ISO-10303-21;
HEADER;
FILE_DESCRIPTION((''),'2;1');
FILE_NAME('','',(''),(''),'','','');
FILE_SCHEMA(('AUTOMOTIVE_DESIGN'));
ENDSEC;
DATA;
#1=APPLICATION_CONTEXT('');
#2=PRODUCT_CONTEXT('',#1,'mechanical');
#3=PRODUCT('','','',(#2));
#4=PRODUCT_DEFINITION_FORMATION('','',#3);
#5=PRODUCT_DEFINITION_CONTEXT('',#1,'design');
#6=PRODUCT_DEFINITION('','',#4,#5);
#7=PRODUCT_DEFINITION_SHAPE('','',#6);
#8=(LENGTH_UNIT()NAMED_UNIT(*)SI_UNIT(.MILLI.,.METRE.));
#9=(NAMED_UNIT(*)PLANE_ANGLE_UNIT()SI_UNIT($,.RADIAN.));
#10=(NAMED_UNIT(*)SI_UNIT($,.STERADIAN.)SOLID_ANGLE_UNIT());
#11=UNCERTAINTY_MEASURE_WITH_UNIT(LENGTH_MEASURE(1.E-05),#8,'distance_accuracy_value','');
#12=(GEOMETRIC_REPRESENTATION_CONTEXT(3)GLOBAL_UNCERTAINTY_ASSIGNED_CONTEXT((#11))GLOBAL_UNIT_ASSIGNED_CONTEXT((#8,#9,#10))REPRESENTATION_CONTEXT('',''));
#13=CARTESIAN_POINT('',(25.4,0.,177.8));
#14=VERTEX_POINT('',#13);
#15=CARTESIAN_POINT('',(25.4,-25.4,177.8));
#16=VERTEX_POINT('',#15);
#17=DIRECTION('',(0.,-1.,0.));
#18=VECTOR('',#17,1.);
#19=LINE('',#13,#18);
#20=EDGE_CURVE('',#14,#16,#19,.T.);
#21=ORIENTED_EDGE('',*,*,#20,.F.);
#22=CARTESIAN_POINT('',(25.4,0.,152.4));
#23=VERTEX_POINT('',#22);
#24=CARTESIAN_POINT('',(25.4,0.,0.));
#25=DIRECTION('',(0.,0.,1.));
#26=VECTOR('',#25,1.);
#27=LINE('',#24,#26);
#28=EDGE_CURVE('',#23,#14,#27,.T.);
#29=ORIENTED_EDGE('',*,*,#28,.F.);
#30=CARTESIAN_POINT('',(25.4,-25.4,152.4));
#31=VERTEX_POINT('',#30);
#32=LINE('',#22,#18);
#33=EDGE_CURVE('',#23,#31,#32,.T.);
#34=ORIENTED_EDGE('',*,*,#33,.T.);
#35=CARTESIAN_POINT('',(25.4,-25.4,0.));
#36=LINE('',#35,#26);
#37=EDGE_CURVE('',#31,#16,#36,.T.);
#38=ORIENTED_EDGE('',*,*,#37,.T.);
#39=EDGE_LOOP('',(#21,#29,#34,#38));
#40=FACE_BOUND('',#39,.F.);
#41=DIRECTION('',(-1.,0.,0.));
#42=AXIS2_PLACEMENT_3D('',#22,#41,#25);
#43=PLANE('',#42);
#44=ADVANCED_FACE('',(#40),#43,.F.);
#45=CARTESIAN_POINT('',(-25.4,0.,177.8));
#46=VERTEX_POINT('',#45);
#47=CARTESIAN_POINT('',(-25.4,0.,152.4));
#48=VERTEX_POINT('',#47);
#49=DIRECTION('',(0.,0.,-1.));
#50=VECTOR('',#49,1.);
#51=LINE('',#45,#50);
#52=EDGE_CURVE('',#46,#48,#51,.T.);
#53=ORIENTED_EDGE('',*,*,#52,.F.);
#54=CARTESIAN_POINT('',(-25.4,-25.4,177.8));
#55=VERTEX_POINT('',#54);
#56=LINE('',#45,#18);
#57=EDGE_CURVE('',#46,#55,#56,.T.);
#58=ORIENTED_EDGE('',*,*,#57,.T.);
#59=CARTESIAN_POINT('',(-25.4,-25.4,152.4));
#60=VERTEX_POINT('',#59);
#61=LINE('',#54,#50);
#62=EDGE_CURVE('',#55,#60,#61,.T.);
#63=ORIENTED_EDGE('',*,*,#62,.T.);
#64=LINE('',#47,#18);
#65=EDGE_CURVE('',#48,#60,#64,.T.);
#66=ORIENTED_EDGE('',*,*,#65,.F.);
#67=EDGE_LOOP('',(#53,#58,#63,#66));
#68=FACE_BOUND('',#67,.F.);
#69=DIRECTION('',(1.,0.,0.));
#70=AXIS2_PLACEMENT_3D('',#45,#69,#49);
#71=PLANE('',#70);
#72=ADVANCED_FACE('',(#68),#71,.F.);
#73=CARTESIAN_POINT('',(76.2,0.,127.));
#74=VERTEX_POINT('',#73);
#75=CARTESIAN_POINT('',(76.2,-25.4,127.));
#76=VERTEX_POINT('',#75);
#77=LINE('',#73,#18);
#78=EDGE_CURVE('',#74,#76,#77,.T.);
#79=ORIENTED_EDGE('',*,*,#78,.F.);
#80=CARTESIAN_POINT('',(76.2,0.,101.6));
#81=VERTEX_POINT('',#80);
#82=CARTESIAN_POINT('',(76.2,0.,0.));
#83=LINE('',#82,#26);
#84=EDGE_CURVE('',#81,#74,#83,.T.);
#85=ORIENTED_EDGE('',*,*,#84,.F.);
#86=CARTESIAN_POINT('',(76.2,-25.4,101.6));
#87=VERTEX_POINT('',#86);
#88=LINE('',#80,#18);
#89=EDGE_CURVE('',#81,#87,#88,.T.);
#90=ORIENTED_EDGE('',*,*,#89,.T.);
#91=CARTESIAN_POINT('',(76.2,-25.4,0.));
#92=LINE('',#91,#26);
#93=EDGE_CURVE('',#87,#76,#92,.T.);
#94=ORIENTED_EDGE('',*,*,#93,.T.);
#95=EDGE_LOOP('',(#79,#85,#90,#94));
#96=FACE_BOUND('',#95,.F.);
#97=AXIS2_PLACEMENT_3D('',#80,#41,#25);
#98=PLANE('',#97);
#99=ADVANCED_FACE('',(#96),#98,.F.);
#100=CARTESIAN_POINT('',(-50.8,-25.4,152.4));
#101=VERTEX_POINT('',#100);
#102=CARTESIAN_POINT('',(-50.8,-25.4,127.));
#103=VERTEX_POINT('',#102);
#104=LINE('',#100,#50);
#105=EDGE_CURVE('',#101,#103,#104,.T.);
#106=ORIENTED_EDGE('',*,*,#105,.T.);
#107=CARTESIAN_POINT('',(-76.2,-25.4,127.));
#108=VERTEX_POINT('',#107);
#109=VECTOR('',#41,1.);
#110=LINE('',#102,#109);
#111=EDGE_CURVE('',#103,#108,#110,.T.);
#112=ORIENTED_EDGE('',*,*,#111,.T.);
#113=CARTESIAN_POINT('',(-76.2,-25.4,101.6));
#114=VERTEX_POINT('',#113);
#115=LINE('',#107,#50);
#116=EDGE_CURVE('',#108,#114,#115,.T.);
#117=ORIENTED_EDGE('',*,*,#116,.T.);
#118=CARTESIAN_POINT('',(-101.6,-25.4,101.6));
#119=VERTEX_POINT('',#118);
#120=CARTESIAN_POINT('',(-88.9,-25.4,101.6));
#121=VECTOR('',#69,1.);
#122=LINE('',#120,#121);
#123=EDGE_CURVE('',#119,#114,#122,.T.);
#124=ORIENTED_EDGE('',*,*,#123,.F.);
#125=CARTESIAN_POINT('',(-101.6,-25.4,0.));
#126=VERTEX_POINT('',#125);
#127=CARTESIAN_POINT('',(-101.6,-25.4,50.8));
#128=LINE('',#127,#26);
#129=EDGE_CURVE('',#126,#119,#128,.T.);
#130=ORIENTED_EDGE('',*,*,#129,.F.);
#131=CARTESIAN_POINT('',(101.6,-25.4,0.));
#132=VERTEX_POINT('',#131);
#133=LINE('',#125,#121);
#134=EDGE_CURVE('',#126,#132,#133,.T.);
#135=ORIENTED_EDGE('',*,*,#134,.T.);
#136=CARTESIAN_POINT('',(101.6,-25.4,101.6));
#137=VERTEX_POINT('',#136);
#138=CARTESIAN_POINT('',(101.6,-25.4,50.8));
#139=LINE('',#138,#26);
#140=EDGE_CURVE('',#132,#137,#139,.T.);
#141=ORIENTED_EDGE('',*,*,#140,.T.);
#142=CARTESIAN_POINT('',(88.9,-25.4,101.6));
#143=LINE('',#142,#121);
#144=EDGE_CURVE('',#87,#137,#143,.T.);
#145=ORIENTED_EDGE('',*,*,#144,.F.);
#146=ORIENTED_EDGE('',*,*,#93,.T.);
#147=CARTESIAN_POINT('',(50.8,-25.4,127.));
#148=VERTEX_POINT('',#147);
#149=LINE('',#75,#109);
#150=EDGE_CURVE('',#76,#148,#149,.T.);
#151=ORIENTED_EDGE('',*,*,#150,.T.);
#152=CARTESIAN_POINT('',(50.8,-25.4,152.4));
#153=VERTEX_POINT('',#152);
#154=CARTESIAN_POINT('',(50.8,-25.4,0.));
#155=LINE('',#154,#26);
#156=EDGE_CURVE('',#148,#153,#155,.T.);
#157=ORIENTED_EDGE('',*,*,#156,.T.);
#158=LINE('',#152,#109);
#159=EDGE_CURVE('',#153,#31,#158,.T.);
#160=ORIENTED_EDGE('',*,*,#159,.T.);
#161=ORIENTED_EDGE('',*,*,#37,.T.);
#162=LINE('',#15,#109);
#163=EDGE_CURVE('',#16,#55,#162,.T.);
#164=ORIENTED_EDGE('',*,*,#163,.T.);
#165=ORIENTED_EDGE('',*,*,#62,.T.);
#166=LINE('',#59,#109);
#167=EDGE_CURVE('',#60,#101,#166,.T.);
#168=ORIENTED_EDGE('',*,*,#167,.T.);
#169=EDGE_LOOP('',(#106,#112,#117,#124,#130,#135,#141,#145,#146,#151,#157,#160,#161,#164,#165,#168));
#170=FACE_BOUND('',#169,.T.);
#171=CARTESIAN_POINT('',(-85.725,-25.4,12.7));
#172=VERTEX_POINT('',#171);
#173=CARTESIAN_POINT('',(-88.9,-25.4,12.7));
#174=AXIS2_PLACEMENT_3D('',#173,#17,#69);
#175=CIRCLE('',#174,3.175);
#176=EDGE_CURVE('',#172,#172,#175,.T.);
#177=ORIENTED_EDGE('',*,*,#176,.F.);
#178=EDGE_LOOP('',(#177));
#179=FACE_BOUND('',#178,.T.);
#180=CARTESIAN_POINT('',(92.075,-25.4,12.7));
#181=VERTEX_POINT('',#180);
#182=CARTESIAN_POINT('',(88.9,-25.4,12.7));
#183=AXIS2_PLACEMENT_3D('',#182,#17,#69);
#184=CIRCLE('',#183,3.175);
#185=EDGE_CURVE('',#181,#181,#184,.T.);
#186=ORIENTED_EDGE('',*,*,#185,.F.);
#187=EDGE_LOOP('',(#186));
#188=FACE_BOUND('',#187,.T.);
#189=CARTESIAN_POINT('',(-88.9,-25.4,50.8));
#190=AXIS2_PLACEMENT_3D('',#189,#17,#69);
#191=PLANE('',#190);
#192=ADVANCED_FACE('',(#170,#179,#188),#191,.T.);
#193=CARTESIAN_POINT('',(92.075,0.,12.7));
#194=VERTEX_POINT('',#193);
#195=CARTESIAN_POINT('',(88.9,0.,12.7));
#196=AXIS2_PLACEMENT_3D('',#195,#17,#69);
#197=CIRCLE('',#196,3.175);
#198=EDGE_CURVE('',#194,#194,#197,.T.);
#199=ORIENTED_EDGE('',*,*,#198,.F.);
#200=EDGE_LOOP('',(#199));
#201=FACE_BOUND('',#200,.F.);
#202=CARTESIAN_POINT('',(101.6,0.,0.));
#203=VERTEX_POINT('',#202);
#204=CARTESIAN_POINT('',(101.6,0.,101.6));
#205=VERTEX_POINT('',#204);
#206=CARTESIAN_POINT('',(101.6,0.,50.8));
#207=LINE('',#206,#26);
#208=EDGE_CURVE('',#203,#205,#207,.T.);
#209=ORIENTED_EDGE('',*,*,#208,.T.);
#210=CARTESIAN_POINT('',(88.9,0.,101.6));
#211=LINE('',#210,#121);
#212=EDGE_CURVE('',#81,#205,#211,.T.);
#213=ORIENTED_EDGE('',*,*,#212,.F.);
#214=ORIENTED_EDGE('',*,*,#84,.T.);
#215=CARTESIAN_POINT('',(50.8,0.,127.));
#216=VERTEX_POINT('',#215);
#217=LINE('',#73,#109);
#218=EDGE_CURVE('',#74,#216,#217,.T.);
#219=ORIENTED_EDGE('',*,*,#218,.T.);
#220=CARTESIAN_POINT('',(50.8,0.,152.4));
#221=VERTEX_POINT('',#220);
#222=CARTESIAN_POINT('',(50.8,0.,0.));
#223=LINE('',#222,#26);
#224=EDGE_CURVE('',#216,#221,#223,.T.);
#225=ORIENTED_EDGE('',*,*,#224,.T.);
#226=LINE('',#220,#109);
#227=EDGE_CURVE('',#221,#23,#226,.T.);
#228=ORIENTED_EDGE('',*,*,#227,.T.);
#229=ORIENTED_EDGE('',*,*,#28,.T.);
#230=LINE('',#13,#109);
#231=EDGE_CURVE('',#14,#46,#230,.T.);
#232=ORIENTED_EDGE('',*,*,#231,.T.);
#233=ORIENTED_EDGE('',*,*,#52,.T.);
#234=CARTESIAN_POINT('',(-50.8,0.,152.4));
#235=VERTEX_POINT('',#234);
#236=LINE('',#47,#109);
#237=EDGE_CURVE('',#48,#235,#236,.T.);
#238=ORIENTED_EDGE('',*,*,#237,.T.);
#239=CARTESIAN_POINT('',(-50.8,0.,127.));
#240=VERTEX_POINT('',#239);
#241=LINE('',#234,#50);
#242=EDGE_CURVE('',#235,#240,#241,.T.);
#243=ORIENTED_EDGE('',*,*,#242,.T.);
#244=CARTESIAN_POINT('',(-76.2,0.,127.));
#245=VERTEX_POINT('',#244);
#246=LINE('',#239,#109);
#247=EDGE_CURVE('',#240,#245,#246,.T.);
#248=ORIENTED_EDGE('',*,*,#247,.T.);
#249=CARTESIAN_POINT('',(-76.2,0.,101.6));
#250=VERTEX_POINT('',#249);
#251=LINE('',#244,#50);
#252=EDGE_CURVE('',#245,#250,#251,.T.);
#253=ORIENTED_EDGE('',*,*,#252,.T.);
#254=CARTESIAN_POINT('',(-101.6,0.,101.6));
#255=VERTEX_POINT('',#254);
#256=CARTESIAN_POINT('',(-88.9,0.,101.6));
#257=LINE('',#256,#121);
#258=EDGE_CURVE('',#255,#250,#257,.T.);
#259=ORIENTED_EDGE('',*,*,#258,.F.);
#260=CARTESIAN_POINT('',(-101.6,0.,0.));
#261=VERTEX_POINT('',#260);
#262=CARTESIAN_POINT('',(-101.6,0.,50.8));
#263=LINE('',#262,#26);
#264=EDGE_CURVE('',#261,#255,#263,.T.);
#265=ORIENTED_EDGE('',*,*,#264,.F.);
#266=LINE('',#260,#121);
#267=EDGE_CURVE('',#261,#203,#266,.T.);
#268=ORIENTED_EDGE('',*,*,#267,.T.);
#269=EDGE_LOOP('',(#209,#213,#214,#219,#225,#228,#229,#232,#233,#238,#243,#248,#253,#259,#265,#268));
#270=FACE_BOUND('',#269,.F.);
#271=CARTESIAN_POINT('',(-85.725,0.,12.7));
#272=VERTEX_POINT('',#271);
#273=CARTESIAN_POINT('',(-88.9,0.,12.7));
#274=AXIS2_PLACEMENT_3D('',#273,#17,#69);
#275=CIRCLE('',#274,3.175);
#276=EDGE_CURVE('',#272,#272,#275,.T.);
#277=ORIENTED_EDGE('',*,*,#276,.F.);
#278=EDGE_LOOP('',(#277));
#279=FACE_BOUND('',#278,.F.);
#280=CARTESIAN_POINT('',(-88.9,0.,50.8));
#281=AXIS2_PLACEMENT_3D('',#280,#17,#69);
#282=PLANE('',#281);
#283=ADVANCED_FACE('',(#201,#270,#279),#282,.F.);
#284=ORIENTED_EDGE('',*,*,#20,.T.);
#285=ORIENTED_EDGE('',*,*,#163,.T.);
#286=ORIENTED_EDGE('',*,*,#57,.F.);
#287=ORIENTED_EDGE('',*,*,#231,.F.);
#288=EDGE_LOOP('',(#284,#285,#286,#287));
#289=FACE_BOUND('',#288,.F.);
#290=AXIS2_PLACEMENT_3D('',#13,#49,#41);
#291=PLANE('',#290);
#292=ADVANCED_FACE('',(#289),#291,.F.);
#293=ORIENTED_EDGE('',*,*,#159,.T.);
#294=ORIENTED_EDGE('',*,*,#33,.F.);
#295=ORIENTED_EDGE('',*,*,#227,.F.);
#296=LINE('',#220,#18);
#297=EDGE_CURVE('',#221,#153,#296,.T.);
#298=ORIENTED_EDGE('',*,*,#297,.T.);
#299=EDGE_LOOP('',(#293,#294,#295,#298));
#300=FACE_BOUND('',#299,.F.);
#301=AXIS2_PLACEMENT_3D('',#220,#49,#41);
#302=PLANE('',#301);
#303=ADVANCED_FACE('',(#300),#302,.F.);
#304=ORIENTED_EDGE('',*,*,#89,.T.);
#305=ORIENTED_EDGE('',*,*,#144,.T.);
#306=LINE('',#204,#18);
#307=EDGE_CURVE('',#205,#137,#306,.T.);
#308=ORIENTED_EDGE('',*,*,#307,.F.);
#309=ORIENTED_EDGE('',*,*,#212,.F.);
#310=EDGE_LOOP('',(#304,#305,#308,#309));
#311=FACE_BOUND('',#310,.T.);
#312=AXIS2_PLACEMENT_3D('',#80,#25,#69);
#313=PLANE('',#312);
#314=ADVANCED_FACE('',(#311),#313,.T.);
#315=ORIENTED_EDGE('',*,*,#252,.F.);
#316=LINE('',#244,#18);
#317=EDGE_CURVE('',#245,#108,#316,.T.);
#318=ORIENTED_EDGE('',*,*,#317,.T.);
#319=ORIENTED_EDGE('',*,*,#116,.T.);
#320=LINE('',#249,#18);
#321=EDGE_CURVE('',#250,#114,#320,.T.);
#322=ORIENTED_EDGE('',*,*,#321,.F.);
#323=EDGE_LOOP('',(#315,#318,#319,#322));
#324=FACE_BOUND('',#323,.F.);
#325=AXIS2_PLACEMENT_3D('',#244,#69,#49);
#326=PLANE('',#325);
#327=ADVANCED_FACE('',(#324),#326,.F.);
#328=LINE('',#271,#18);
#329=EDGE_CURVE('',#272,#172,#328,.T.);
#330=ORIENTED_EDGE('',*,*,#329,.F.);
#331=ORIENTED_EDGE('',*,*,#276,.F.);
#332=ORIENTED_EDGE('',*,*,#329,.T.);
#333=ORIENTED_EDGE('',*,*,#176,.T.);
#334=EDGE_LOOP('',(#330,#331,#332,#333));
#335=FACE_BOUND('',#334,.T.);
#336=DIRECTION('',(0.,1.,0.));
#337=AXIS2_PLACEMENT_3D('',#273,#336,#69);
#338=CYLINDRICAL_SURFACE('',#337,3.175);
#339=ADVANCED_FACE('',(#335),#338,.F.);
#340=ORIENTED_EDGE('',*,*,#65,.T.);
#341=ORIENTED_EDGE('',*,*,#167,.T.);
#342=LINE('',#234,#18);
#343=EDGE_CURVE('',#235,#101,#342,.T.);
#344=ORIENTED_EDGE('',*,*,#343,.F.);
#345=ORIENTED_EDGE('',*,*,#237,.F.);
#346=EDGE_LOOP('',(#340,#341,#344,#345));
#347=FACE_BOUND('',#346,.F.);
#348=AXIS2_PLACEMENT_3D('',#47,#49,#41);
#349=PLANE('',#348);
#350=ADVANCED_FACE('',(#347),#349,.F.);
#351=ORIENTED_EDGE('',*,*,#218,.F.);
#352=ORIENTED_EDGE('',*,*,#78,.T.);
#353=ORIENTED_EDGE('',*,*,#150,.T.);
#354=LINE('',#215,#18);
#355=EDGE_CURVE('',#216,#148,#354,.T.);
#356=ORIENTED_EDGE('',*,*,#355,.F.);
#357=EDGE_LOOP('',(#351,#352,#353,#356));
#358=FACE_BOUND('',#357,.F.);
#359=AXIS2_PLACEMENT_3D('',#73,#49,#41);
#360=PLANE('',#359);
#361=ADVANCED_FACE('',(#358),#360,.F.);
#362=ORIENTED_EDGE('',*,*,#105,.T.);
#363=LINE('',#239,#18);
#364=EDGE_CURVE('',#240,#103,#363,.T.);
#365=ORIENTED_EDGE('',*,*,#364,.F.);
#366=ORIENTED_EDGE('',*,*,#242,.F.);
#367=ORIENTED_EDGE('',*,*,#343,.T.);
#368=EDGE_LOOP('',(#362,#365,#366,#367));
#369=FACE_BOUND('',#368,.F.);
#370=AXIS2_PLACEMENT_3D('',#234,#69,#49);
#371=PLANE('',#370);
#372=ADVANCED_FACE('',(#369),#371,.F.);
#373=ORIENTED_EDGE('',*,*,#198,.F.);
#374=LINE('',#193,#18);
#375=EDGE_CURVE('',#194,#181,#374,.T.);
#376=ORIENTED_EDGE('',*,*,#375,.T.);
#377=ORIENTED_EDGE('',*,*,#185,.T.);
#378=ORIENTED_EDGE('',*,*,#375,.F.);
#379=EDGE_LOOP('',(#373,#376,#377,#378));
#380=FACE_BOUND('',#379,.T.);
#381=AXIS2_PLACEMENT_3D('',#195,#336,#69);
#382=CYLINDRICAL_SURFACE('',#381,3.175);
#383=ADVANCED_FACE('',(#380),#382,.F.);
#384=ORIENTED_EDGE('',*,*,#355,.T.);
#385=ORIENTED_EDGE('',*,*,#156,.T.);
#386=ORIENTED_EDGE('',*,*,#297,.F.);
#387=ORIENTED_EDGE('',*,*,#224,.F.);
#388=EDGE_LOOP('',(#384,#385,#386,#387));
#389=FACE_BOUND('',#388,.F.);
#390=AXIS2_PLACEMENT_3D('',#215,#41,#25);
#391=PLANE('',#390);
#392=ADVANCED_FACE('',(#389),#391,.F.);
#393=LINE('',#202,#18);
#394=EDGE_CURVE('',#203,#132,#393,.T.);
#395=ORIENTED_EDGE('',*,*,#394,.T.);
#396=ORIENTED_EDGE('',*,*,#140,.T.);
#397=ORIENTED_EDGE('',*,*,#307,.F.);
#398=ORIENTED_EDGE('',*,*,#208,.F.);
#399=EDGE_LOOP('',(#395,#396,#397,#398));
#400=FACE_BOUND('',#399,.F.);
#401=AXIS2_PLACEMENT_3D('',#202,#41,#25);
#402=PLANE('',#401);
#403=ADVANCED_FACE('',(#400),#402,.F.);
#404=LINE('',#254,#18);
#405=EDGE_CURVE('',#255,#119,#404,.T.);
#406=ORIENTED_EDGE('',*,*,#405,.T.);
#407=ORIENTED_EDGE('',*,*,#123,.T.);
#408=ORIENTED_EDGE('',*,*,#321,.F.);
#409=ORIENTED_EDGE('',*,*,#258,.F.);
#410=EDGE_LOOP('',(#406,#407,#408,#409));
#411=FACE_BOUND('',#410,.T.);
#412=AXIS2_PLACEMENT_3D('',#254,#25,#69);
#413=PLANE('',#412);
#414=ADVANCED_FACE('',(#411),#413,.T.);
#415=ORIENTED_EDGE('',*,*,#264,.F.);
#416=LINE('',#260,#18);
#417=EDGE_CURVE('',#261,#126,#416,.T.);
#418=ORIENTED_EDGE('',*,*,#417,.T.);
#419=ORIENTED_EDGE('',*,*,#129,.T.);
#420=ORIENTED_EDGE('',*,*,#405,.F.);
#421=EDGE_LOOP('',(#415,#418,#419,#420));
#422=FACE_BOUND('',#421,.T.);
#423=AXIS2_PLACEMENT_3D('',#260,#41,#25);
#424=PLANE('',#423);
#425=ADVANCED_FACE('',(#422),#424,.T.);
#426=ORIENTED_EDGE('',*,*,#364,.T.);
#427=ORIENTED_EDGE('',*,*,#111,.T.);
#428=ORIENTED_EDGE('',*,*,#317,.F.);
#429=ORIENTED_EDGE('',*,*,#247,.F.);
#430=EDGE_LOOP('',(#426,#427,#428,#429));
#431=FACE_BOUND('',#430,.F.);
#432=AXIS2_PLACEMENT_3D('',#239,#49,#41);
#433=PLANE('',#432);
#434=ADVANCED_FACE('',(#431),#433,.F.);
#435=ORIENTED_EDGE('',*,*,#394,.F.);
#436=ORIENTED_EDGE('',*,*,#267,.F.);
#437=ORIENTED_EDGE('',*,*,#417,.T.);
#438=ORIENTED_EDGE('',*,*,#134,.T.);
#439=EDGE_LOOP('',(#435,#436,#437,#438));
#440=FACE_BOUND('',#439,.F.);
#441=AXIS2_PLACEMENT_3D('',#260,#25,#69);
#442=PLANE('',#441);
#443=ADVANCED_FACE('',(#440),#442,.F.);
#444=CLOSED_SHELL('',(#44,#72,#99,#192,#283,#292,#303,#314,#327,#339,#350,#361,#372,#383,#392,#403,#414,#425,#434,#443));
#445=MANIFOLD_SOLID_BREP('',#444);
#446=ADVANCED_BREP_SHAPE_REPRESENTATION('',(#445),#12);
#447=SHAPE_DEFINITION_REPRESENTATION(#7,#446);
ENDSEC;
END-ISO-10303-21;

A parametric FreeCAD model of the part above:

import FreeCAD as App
import Part
import Sketcher
Q = App.Units.Quantity

doc = App.newDocument("Part")
body = doc.addObject("PartDesign::Body", "Body")

# Sketch on XZ plane
sketch1 = doc.addObject("Sketcher::SketchObject", "Sketch")
body.addObject(sketch1)
sketch1.AttachmentSupport = (doc.XZ_Plane, [""])
sketch1.MapMode = "FlatFace"
sketch1.addGeometry([
    Part.LineSegment(App.Vector(-101.6, 101.6, 0), App.Vector(-101.6, 0, 0)),  # 0
    Part.LineSegment(App.Vector(-101.6, 0, 0), App.Vector(101.6, 0, 0)),  # 1
    Part.LineSegment(App.Vector(101.6, 0, 0), App.Vector(101.6, 101.6, 0)),  # 2
    Part.LineSegment(App.Vector(101.6, 101.6, 0), App.Vector(76.2, 101.6, 0)),  # 3
    Part.LineSegment(App.Vector(76.2, 101.6, 0), App.Vector(76.2, 127, 0)),  # 4
    Part.LineSegment(App.Vector(76.2, 127, 0), App.Vector(50.8, 127, 0)),  # 5
    Part.LineSegment(App.Vector(50.8, 127, 0), App.Vector(50.8, 152.4, 0)),  # 6
    Part.LineSegment(App.Vector(50.8, 152.4, 0), App.Vector(25.4, 152.4, 0)),  # 7
    Part.LineSegment(App.Vector(25.4, 152.4, 0), App.Vector(25.4, 177.8, 0)),  # 8
    Part.LineSegment(App.Vector(25.4, 177.8, 0), App.Vector(-25.4, 177.8, 0)),  # 9
    Part.LineSegment(App.Vector(-25.4, 177.8, 0), App.Vector(-25.4, 152.4, 0)),  # 10
    Part.LineSegment(App.Vector(-25.4, 152.4, 0), App.Vector(-50.8, 152.4, 0)),  # 11
    Part.LineSegment(App.Vector(-50.8, 152.4, 0), App.Vector(-50.8, 127, 0)),  # 12
    Part.LineSegment(App.Vector(-50.8, 127, 0), App.Vector(-76.2, 127, 0)),  # 13
    Part.LineSegment(App.Vector(-76.2, 127, 0), App.Vector(-76.2, 101.6, 0)),  # 14
    Part.LineSegment(App.Vector(-76.2, 101.6, 0), App.Vector(-101.6, 101.6, 0)),  # 15
    Part.Circle(App.Vector(-88.9, 12.7, 0), App.Vector(0, 0, 1), 3.2),  # 16
    Part.Circle(App.Vector(88.9, 12.7, 0), App.Vector(0, 0, 1), 3.2),  # 17
], False)
sketch1.addConstraint([
    Sketcher.Constraint("Coincident", 0, 2, 1, 1),
    Sketcher.Constraint("Coincident", 1, 2, 2, 1),
    Sketcher.Constraint("Coincident", 2, 2, 3, 1),
    Sketcher.Constraint("Coincident", 3, 2, 4, 1),
    Sketcher.Constraint("Coincident", 4, 2, 5, 1),
    Sketcher.Constraint("Coincident", 5, 2, 6, 1),
    Sketcher.Constraint("Coincident", 6, 2, 7, 1),
    Sketcher.Constraint("Coincident", 7, 2, 8, 1),
    Sketcher.Constraint("Coincident", 8, 2, 9, 1),
    Sketcher.Constraint("Coincident", 9, 2, 10, 1),
    Sketcher.Constraint("Coincident", 10, 2, 11, 1),
    Sketcher.Constraint("Coincident", 11, 2, 12, 1),
    Sketcher.Constraint("Coincident", 12, 2, 13, 1),
    Sketcher.Constraint("Coincident", 13, 2, 14, 1),
    Sketcher.Constraint("Coincident", 14, 2, 15, 1),
    Sketcher.Constraint("Coincident", 15, 2, 0, 1),
    Sketcher.Constraint("Vertical", 0),
    Sketcher.Constraint("Horizontal", 1),
    Sketcher.Constraint("Vertical", 2),
    Sketcher.Constraint("Horizontal", 3),
    Sketcher.Constraint("Vertical", 4),
    Sketcher.Constraint("Horizontal", 5),
    Sketcher.Constraint("Vertical", 6),
    Sketcher.Constraint("Horizontal", 7),
    Sketcher.Constraint("Vertical", 8),
    Sketcher.Constraint("Horizontal", 9),
    Sketcher.Constraint("Vertical", 10),
    Sketcher.Constraint("Horizontal", 11),
    Sketcher.Constraint("Vertical", 12),
    Sketcher.Constraint("Horizontal", 13),
    Sketcher.Constraint("Vertical", 14),
    Sketcher.Constraint("Horizontal", 15),
    Sketcher.Constraint("Equal", 16, 17),
    Sketcher.Constraint("Symmetric", 0, 2, 1, 2, -1, 1),
    Sketcher.Constraint("Symmetric", 16, 3, 17, 3, -2),
    Sketcher.Constraint("Symmetric", 7, 2, 10, 2, -2),
    Sketcher.Constraint("Symmetric", 5, 2, 12, 2, -2),
    Sketcher.Constraint("Symmetric", 3, 2, 14, 2, -2),
    Sketcher.Constraint("Equal", 3, 5),
    Sketcher.Constraint("Equal", 5, 7),
    Sketcher.Constraint("Equal", 15, 4),
    Sketcher.Constraint("Equal", 4, 6),
    Sketcher.Constraint("Equal", 6, 8),
    Sketcher.Constraint("Diameter", 16, Q("0.25 in")),
    Sketcher.Constraint("DistanceX", 1, 1, 1, 2, Q("8 in")),
    Sketcher.Constraint("DistanceX", 3, 2, 3, 1, Q("1 in")),
    Sketcher.Constraint("DistanceY", 0, 2, 0, 1, Q("4 in")),
    Sketcher.Constraint("DistanceX", 16, 3, 17, 3, Q("7 in")),
    Sketcher.Constraint("DistanceY", -1, 1, 16, 3, Q("0.5 in")),
])
pad1 = doc.addObject("PartDesign::Pad", "Pad")
body.addObject(pad1)
pad1.Profile = sketch1
pad1.Length = Q("1 in")

doc.recompute()
